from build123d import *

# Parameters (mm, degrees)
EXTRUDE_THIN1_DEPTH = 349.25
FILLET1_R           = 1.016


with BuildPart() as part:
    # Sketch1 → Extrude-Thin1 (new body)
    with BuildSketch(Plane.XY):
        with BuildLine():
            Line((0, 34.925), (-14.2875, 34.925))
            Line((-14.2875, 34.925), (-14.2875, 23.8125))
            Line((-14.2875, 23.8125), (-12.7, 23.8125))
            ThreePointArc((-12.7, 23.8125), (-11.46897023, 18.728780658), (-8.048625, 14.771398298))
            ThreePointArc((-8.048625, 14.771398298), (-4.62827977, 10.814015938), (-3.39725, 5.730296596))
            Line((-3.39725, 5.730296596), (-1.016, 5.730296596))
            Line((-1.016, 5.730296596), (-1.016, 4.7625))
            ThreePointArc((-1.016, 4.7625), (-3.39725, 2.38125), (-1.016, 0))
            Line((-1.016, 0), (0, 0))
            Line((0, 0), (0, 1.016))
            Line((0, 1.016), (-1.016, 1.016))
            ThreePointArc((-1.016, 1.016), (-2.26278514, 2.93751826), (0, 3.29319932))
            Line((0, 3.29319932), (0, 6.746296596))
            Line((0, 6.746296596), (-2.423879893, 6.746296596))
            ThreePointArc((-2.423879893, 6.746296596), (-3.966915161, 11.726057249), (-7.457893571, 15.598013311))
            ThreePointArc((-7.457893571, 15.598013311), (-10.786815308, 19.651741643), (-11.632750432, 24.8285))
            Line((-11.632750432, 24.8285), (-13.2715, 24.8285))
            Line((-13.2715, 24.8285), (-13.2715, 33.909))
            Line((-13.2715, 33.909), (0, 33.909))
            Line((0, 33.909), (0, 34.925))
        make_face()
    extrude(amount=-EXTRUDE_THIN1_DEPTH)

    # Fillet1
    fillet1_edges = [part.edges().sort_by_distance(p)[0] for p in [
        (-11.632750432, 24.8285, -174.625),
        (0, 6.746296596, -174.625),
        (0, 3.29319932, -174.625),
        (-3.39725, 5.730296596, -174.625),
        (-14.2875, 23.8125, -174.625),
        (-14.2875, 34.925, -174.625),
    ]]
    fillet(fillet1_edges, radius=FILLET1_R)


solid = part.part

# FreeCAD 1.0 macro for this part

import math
import FreeCAD as App
import Part
import Sketcher
from FreeCAD import Vector
Q = App.Units.Quantity


def edges_at(feature, points):
    """Names of the edges that pass closest to the given points."""
    edges = feature.Shape.Edges
    near = lambda p: min(range(len(edges)), key=lambda i: edges[i].distToShape(Part.Vertex(*p))[0])
    return sorted({f"Edge{near(p) + 1}" for p in points})

doc = App.newDocument("Part")
params = doc.addObject("Spreadsheet::Sheet", "Params")
for row, (alias, value) in enumerate([
    ("sketch1_radius", "0.4375 in"),
    ("sketch1_radius2", "0.09375 in"),
    ("sketch1_width", "0.04 in"),
    ("sketch1_width2", "0.09375 in"),
    ("sketch1_height", "0.4375 in"),
    ("pad1_length", "13.75 in"),
    ("fillet_radius", "0.04 in"),
], start=1):
    params.set(f"A{row}", alias)
    params.set(f"B{row}", "=" + value)
    params.setAlias(f"B{row}", alias)

body = doc.addObject("PartDesign::Body", "Body")

# Sketch on XY plane
sketch1 = body.newObject("Sketcher::SketchObject", "Sketch")
sketch1.AttachmentSupport = (doc.getObject("XY_Plane"), [""])
sketch1.MapMode = "FlatFace"
sketch1.addGeometry([
    Part.LineSegment(Vector(0, 34.9, 0), Vector(-14.3, 34.9, 0)),  # 0
    Part.LineSegment(Vector(-14.3, 34.9, 0), Vector(-14.3, 23.8, 0)),  # 1
    Part.LineSegment(Vector(-14.3, 23.8, 0), Vector(-12.7, 23.8, 0)),  # 2
    Part.ArcOfCircle(Part.Circle(Vector(-1.6, 23.8, 0), Vector(0, 0, 1), 11.1), math.radians(180), math.radians(234)),  # 3
    Part.ArcOfCircle(Part.Circle(Vector(-14.5, 5.7, 0), Vector(0, 0, 1), 11.1), math.radians(0), math.radians(54)),  # 4
    Part.LineSegment(Vector(-3.4, 5.7, 0), Vector(-1, 5.7, 0)),  # 5
    Part.LineSegment(Vector(-1, 5.7, 0), Vector(-1, 4.8, 0)),  # 6
    Part.ArcOfCircle(Part.Circle(Vector(-1, 2.4, 0), Vector(0, 0, 1), 2.4), math.radians(90), math.radians(270)),  # 7
    Part.LineSegment(Vector(-1, 0, 0), Vector(0, 0, 0)),  # 8
    Part.LineSegment(Vector(0, 0, 0), Vector(0, 1, 0)),  # 9
    Part.LineSegment(Vector(0, 1, 0), Vector(-1, 1, 0)),  # 10
    Part.ArcOfCircle(Part.Circle(Vector(-1, 2.4, 0), Vector(0, 0, 1), 1.4), math.radians(42), math.radians(270)),  # 11
    Part.LineSegment(Vector(0, 3.3, 0), Vector(0, 6.7, 0)),  # 12
    Part.LineSegment(Vector(0, 6.7, 0), Vector(-2.4, 6.7, 0)),  # 13
    Part.ArcOfCircle(Part.Circle(Vector(-14.5, 5.7, 0), Vector(0, 0, 1), 12.1), math.radians(5), math.radians(54)),  # 14
    Part.ArcOfCircle(Part.Circle(Vector(-1.6, 23.8, 0), Vector(0, 0, 1), 10.1), math.radians(174), math.radians(234)),  # 15
    Part.LineSegment(Vector(-11.6, 24.8, 0), Vector(-13.3, 24.8, 0)),  # 16
    Part.LineSegment(Vector(-13.3, 24.8, 0), Vector(-13.3, 33.9, 0)),  # 17
    Part.LineSegment(Vector(-13.3, 33.9, 0), Vector(0, 33.9, 0)),  # 18
    Part.LineSegment(Vector(0, 33.9, 0), Vector(0, 34.9, 0)),  # 19
], False)
sketch1.addConstraint([
    Sketcher.Constraint("Coincident", 0, 2, 1, 1),
    Sketcher.Constraint("Coincident", 1, 2, 2, 1),
    Sketcher.Constraint("Coincident", 2, 2, 3, 1),
    Sketcher.Constraint("Tangent", 3, 2, 4, 2),
    Sketcher.Constraint("Coincident", 4, 1, 5, 1),
    Sketcher.Constraint("Coincident", 5, 2, 6, 1),
    Sketcher.Constraint("Coincident", 6, 2, 7, 1),
    Sketcher.Constraint("Tangent", 7, 2, 8, 1),
    Sketcher.Constraint("Coincident", 8, 2, 9, 1),
    Sketcher.Constraint("Coincident", 9, 2, 10, 1),
    Sketcher.Constraint("Tangent", 10, 2, 11, 2),
    Sketcher.Constraint("Coincident", 11, 1, 12, 1),
    Sketcher.Constraint("Coincident", 12, 2, 13, 1),
    Sketcher.Constraint("Coincident", 13, 2, 14, 1),
    Sketcher.Constraint("Tangent", 14, 2, 15, 2),
    Sketcher.Constraint("Coincident", 15, 1, 16, 1),
    Sketcher.Constraint("Coincident", 16, 2, 17, 1),
    Sketcher.Constraint("Coincident", 17, 2, 18, 1),
    Sketcher.Constraint("Coincident", 18, 2, 19, 1),
    Sketcher.Constraint("Coincident", 19, 2, 0, 1),
    Sketcher.Constraint("Horizontal", 0),
    Sketcher.Constraint("Vertical", 1),
    Sketcher.Constraint("Horizontal", 2),
    Sketcher.Constraint("Horizontal", 5),
    Sketcher.Constraint("Vertical", 6),
    Sketcher.Constraint("Horizontal", 8),
    Sketcher.Constraint("Vertical", 9),
    Sketcher.Constraint("Horizontal", 10),
    Sketcher.Constraint("Vertical", 12),
    Sketcher.Constraint("Horizontal", 13),
    Sketcher.Constraint("Horizontal", 16),
    Sketcher.Constraint("Vertical", 17),
    Sketcher.Constraint("Horizontal", 18),
    Sketcher.Constraint("Vertical", 19),
    Sketcher.Constraint("Coincident", 8, 2, -1, 1),
    Sketcher.Constraint("Coincident", 11, 3, 7, 3),
    Sketcher.Constraint("Coincident", 14, 3, 4, 3),
    Sketcher.Constraint("Coincident", 15, 3, 3, 3),
    Sketcher.Constraint("Equal", 3, 4),
    Sketcher.Constraint("PointOnObject", 11, 1, -2),
    Sketcher.Constraint("PointOnObject", 18, 2, -2),
    Sketcher.Constraint("Horizontal", 15, 3, 1, 2),
    Sketcher.Constraint("Horizontal", 14, 3, 4, 1),
    Sketcher.Constraint("Vertical", 11, 3, 5, 2),
    Sketcher.Constraint("Equal", 10, 9),
    Sketcher.Constraint("Equal", 9, 19),
    Sketcher.Constraint("Radius", 3, Q("0.4375 in")),
    Sketcher.Constraint("Radius", 7, Q("0.09375 in")),
    Sketcher.Constraint("DistanceX", 8, 1, 8, 2, Q("0.04 in")),
    Sketcher.Constraint("DistanceX", 2, 2, -1, 1, Q("0.5 in")),
    Sketcher.Constraint("Radius", 14, Q("0.4775 in")),
    Sketcher.Constraint("DistanceX", 0, 2, 3, 3, Q("0.5 in")),
    Sketcher.Constraint("DistanceX", 5, 1, 5, 2, Q("0.09375 in")),
    Sketcher.Constraint("DistanceY", 1, 2, 1, 1, Q("0.4375 in")),
    Sketcher.Constraint("DistanceY", 5, 2, 12, 2, Q("0.04 in")),
    Sketcher.Constraint("DistanceY", 2, 2, 15, 1, Q("0.04 in")),
    Sketcher.Constraint("DistanceX", 1, 2, 16, 2, Q("0.04 in")),
    Sketcher.Constraint("DistanceY", -1, 1, 3, 3, Q("0.9375 in")),
])
sketch1.setExpression("Constraints[46]", "Params.sketch1_radius")
sketch1.setExpression("Constraints[47]", "Params.sketch1_radius2")
sketch1.setExpression("Constraints[48]", "Params.sketch1_width")
sketch1.setExpression("Constraints[52]", "Params.sketch1_width2")
sketch1.setExpression("Constraints[53]", "Params.sketch1_height")
pad1 = body.newObject("PartDesign::Pad", "Pad")
pad1.Profile = sketch1
pad1.setExpression("Length", "Params.pad1_length")
pad1.Reversed = True
doc.recompute()

fillet = body.newObject("PartDesign::Fillet", "Fillet")
fillet.Base = (pad1, edges_at(pad1, [
    (-11.633, 24.828, -174.625),
    (0, 6.746, -174.625),
    (0, 3.293, -174.625),
    (-3.397, 5.73, -174.625),
    (-14.287, 23.812, -174.625),
    (-14.287, 34.925, -174.625),
]))
fillet.setExpression("Radius", "Params.fillet_radius")

doc.recompute()
